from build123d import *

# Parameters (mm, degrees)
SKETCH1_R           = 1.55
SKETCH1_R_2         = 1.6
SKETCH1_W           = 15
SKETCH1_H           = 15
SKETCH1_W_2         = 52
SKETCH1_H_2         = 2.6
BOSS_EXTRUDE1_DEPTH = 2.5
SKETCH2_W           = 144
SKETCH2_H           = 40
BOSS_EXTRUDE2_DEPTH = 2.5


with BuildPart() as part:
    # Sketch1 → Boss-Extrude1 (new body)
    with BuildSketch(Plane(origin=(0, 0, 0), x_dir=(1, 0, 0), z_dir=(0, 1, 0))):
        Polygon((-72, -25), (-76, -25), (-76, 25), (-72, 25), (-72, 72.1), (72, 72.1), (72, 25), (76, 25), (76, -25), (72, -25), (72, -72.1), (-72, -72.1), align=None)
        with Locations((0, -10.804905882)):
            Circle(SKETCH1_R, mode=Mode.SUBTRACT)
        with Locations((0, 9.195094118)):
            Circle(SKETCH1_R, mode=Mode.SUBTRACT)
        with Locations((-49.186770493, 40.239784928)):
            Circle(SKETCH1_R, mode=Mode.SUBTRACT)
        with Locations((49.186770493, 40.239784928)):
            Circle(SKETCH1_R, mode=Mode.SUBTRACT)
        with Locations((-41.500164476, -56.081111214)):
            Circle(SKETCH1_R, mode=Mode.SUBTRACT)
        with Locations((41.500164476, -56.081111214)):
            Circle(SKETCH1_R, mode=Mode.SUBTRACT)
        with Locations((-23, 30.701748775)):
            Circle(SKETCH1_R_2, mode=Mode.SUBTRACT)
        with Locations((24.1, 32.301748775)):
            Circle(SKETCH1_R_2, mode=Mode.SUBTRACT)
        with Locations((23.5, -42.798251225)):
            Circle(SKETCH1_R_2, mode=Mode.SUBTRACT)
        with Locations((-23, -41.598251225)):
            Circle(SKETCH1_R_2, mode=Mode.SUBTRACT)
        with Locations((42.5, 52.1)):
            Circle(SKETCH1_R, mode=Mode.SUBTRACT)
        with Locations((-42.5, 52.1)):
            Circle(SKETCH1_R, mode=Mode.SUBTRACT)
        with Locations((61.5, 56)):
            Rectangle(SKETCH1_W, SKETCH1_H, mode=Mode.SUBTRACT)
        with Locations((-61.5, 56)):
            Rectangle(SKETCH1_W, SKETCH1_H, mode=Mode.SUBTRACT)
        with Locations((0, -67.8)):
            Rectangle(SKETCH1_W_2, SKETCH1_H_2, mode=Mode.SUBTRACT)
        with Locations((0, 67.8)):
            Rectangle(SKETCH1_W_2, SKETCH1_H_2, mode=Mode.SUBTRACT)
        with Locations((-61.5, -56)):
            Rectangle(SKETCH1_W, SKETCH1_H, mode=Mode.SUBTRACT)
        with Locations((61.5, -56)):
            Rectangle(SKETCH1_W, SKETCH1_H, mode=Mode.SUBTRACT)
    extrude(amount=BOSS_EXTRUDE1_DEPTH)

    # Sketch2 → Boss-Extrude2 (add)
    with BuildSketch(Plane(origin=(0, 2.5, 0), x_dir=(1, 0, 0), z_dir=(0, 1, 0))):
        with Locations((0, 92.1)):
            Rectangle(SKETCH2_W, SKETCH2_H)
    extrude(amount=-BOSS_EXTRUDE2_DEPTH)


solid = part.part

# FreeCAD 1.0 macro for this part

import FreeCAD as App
import Part
import Sketcher

V = App.Vector

doc = App.newDocument("Part")
params = doc.addObject("Spreadsheet::Sheet", "Params")
for row, (alias, value) in enumerate([
    ("sketch1_diameter", "3.1 mm"),
    ("sketch1_diameter2", "3.2 mm"),
    ("sketch1_width", "4 mm"),
    ("sketch1_width2", "144 mm"),
    ("sketch1_width3", "15 mm"),
    ("pad1_length", "2.5 mm"),
    ("sketch2_width", "144 mm"),
    ("sketch2_height", "40 mm"),
    ("pad2_length", "2.5 mm"),
], start=1):
    params.set(f"A{row}", alias)
    params.set(f"B{row}", "=" + value)
    params.setAlias(f"B{row}", alias)

body = doc.addObject("PartDesign::Body", "Body")

sketch1 = doc.addObject("Sketcher::SketchObject", "Sketch")
body.addObject(sketch1)
sketch1.AttachmentSupport = (doc.XZ_Plane, [""])
sketch1.MapMode = "FlatFace"
sketch1.addGeometry(Part.LineSegment(V(-76, 25, 0), V(-72, 25, 0)), False)
sketch1.addGeometry(Part.LineSegment(V(-72, 25, 0), V(-72, 72.1, 0)), False)
sketch1.addGeometry(Part.LineSegment(V(-72, 72.1, 0), V(72, 72.1, 0)), False)
sketch1.addGeometry(Part.LineSegment(V(72, 72.1, 0), V(72, 25, 0)), False)
sketch1.addGeometry(Part.LineSegment(V(72, 25, 0), V(76, 25, 0)), False)
sketch1.addGeometry(Part.LineSegment(V(76, 25, 0), V(76, -25, 0)), False)
sketch1.addGeometry(Part.LineSegment(V(76, -25, 0), V(72, -25, 0)), False)
sketch1.addGeometry(Part.LineSegment(V(72, -25, 0), V(72, -72.1, 0)), False)
sketch1.addGeometry(Part.LineSegment(V(72, -72.1, 0), V(-72, -72.1, 0)), False)
sketch1.addGeometry(Part.LineSegment(V(-72, -72.1, 0), V(-72, -25, 0)), False)
sketch1.addGeometry(Part.LineSegment(V(-72, -25, 0), V(-76, -25, 0)), False)
sketch1.addGeometry(Part.LineSegment(V(-76, -25, 0), V(-76, 25, 0)), False)
sketch1.addGeometry(Part.LineSegment(V(54, 63.5, 0), V(54, 48.5, 0)), False)
sketch1.addGeometry(Part.LineSegment(V(54, 48.5, 0), V(69, 48.5, 0)), False)
sketch1.addGeometry(Part.LineSegment(V(69, 48.5, 0), V(69, 63.5, 0)), False)
sketch1.addGeometry(Part.LineSegment(V(69, 63.5, 0), V(54, 63.5, 0)), False)
sketch1.addGeometry(Part.Circle(V(41.500164, 56.081111, 0), V(0, 0, 1), 1.55), False)
sketch1.addGeometry(Part.Circle(V(23.5, 42.798251, 0), V(0, 0, 1), 1.6), False)
sketch1.addGeometry(Part.LineSegment(V(-26, 69.1, 0), V(-26, 66.5, 0)), False)
sketch1.addGeometry(Part.LineSegment(V(-26, 66.5, 0), V(26, 66.5, 0)), False)
sketch1.addGeometry(Part.LineSegment(V(26, 66.5, 0), V(26, 69.1, 0)), False)
sketch1.addGeometry(Part.LineSegment(V(26, 69.1, 0), V(-26, 69.1, 0)), False)
sketch1.addGeometry(Part.Circle(V(-23, 41.598251, 0), V(0, 0, 1), 1.6), False)
sketch1.addGeometry(Part.Circle(V(-41.500164, 56.081111, 0), V(0, 0, 1), 1.55), False)
sketch1.addGeometry(Part.LineSegment(V(-69, 63.5, 0), V(-69, 48.5, 0)), False)
sketch1.addGeometry(Part.LineSegment(V(-69, 48.5, 0), V(-54, 48.5, 0)), False)
sketch1.addGeometry(Part.LineSegment(V(-54, 48.5, 0), V(-54, 63.5, 0)), False)
sketch1.addGeometry(Part.LineSegment(V(-54, 63.5, 0), V(-69, 63.5, 0)), False)
sketch1.addGeometry(Part.Circle(V(0, 10.804906, 0), V(0, 0, 1), 1.55), False)
sketch1.addGeometry(Part.Circle(V(24.1, -32.301749, 0), V(0, 0, 1), 1.6), False)
sketch1.addGeometry(Part.Circle(V(49.18677, -40.239785, 0), V(0, 0, 1), 1.55), False)
sketch1.addGeometry(Part.LineSegment(V(54, -48.5, 0), V(54, -63.5, 0)), False)
sketch1.addGeometry(Part.LineSegment(V(54, -63.5, 0), V(69, -63.5, 0)), False)
sketch1.addGeometry(Part.LineSegment(V(69, -63.5, 0), V(69, -48.5, 0)), False)
sketch1.addGeometry(Part.LineSegment(V(69, -48.5, 0), V(54, -48.5, 0)), False)
sketch1.addGeometry(Part.Circle(V(42.5, -52.1, 0), V(0, 0, 1), 1.55), False)
sketch1.addGeometry(Part.Circle(V(0, -9.195094, 0), V(0, 0, 1), 1.55), False)
sketch1.addGeometry(Part.Circle(V(-23, -30.701749, 0), V(0, 0, 1), 1.6), False)
sketch1.addGeometry(Part.LineSegment(V(-26, -66.5, 0), V(-26, -69.1, 0)), False)
sketch1.addGeometry(Part.LineSegment(V(-26, -69.1, 0), V(26, -69.1, 0)), False)
sketch1.addGeometry(Part.LineSegment(V(26, -69.1, 0), V(26, -66.5, 0)), False)
sketch1.addGeometry(Part.LineSegment(V(26, -66.5, 0), V(-26, -66.5, 0)), False)
sketch1.addGeometry(Part.Circle(V(-49.18677, -40.239785, 0), V(0, 0, 1), 1.55), False)
sketch1.addGeometry(Part.Circle(V(-42.5, -52.1, 0), V(0, 0, 1), 1.55), False)
sketch1.addGeometry(Part.LineSegment(V(-69, -48.5, 0), V(-69, -63.5, 0)), False)
sketch1.addGeometry(Part.LineSegment(V(-69, -63.5, 0), V(-54, -63.5, 0)), False)
sketch1.addGeometry(Part.LineSegment(V(-54, -63.5, 0), V(-54, -48.5, 0)), False)
sketch1.addGeometry(Part.LineSegment(V(-54, -48.5, 0), V(-69, -48.5, 0)), False)
sketch1.addConstraint(Sketcher.Constraint("Coincident", 0, 2, 1, 1))
sketch1.addConstraint(Sketcher.Constraint("Coincident", 1, 2, 2, 1))
sketch1.addConstraint(Sketcher.Constraint("Coincident", 2, 2, 3, 1))
sketch1.addConstraint(Sketcher.Constraint("Coincident", 3, 2, 4, 1))
sketch1.addConstraint(Sketcher.Constraint("Coincident", 4, 2, 5, 1))
sketch1.addConstraint(Sketcher.Constraint("Coincident", 5, 2, 6, 1))
sketch1.addConstraint(Sketcher.Constraint("Coincident", 6, 2, 7, 1))
sketch1.addConstraint(Sketcher.Constraint("Coincident", 7, 2, 8, 1))
sketch1.addConstraint(Sketcher.Constraint("Coincident", 8, 2, 9, 1))
sketch1.addConstraint(Sketcher.Constraint("Coincident", 9, 2, 10, 1))
sketch1.addConstraint(Sketcher.Constraint("Coincident", 10, 2, 11, 1))
sketch1.addConstraint(Sketcher.Constraint("Coincident", 11, 2, 0, 1))
sketch1.addConstraint(Sketcher.Constraint("Coincident", 12, 2, 13, 1))
sketch1.addConstraint(Sketcher.Constraint("Coincident", 13, 2, 14, 1))
sketch1.addConstraint(Sketcher.Constraint("Coincident", 14, 2, 15, 1))
sketch1.addConstraint(Sketcher.Constraint("Coincident", 15, 2, 12, 1))
sketch1.addConstraint(Sketcher.Constraint("Coincident", 18, 2, 19, 1))
sketch1.addConstraint(Sketcher.Constraint("Coincident", 19, 2, 20, 1))
sketch1.addConstraint(Sketcher.Constraint("Coincident", 20, 2, 21, 1))
sketch1.addConstraint(Sketcher.Constraint("Coincident", 21, 2, 18, 1))
sketch1.addConstraint(Sketcher.Constraint("Coincident", 24, 2, 25, 1))
sketch1.addConstraint(Sketcher.Constraint("Coincident", 25, 2, 26, 1))
sketch1.addConstraint(Sketcher.Constraint("Coincident", 26, 2, 27, 1))
sketch1.addConstraint(Sketcher.Constraint("Coincident", 27, 2, 24, 1))
sketch1.addConstraint(Sketcher.Constraint("Coincident", 31, 2, 32, 1))
sketch1.addConstraint(Sketcher.Constraint("Coincident", 32, 2, 33, 1))
sketch1.addConstraint(Sketcher.Constraint("Coincident", 33, 2, 34, 1))
sketch1.addConstraint(Sketcher.Constraint("Coincident", 34, 2, 31, 1))
sketch1.addConstraint(Sketcher.Constraint("Coincident", 38, 2, 39, 1))
sketch1.addConstraint(Sketcher.Constraint("Coincident", 39, 2, 40, 1))
sketch1.addConstraint(Sketcher.Constraint("Coincident", 40, 2, 41, 1))
sketch1.addConstraint(Sketcher.Constraint("Coincident", 41, 2, 38, 1))
sketch1.addConstraint(Sketcher.Constraint("Coincident", 44, 2, 45, 1))
sketch1.addConstraint(Sketcher.Constraint("Coincident", 45, 2, 46, 1))
sketch1.addConstraint(Sketcher.Constraint("Coincident", 46, 2, 47, 1))
sketch1.addConstraint(Sketcher.Constraint("Coincident", 47, 2, 44, 1))
sketch1.addConstraint(Sketcher.Constraint("Horizontal", 0))
sketch1.addConstraint(Sketcher.Constraint("Vertical", 1))
sketch1.addConstraint(Sketcher.Constraint("Horizontal", 2))
sketch1.addConstraint(Sketcher.Constraint("Vertical", 3))
sketch1.addConstraint(Sketcher.Constraint("Horizontal", 4))
sketch1.addConstraint(Sketcher.Constraint("Vertical", 5))
sketch1.addConstraint(Sketcher.Constraint("Horizontal", 6))
sketch1.addConstraint(Sketcher.Constraint("Vertical", 7))
sketch1.addConstraint(Sketcher.Constraint("Horizontal", 8))
sketch1.addConstraint(Sketcher.Constraint("Vertical", 9))
sketch1.addConstraint(Sketcher.Constraint("Horizontal", 10))
sketch1.addConstraint(Sketcher.Constraint("Vertical", 11))
sketch1.addConstraint(Sketcher.Constraint("Vertical", 12))
sketch1.addConstraint(Sketcher.Constraint("Horizontal", 13))
sketch1.addConstraint(Sketcher.Constraint("Vertical", 14))
sketch1.addConstraint(Sketcher.Constraint("Horizontal", 15))
sketch1.addConstraint(Sketcher.Constraint("Vertical", 18))
sketch1.addConstraint(Sketcher.Constraint("Horizontal", 19))
sketch1.addConstraint(Sketcher.Constraint("Vertical", 20))
sketch1.addConstraint(Sketcher.Constraint("Horizontal", 21))
sketch1.addConstraint(Sketcher.Constraint("Vertical", 24))
sketch1.addConstraint(Sketcher.Constraint("Horizontal", 25))
sketch1.addConstraint(Sketcher.Constraint("Vertical", 26))
sketch1.addConstraint(Sketcher.Constraint("Horizontal", 27))
sketch1.addConstraint(Sketcher.Constraint("Vertical", 31))
sketch1.addConstraint(Sketcher.Constraint("Horizontal", 32))
sketch1.addConstraint(Sketcher.Constraint("Vertical", 33))
sketch1.addConstraint(Sketcher.Constraint("Horizontal", 34))
sketch1.addConstraint(Sketcher.Constraint("Vertical", 38))
sketch1.addConstraint(Sketcher.Constraint("Horizontal", 39))
sketch1.addConstraint(Sketcher.Constraint("Vertical", 40))
sketch1.addConstraint(Sketcher.Constraint("Horizontal", 41))
sketch1.addConstraint(Sketcher.Constraint("Vertical", 44))
sketch1.addConstraint(Sketcher.Constraint("Horizontal", 45))
sketch1.addConstraint(Sketcher.Constraint("Vertical", 46))
sketch1.addConstraint(Sketcher.Constraint("Horizontal", 47))
sketch1.addConstraint(Sketcher.Constraint("Equal", 17, 22))
sketch1.addConstraint(Sketcher.Constraint("Equal", 16, 23))
sketch1.addConstraint(Sketcher.Constraint("Equal", 23, 28))
sketch1.addConstraint(Sketcher.Constraint("Equal", 22, 29))
sketch1.addConstraint(Sketcher.Constraint("Equal", 28, 30))
sketch1.addConstraint(Sketcher.Constraint("Equal", 30, 35))
sketch1.addConstraint(Sketcher.Constraint("Equal", 35, 36))
sketch1.addConstraint(Sketcher.Constraint("Equal", 29, 37))
sketch1.addConstraint(Sketcher.Constraint("Equal", 36, 42))
sketch1.addConstraint(Sketcher.Constraint("Equal", 42, 43))
sketch1.addConstraint(Sketcher.Constraint("Symmetric", 0, 2, 6, 2, -1, 1))
sketch1.addConstraint(Sketcher.Constraint("Symmetric", 2, 2, 8, 2, -1, 1))
sketch1.addConstraint(Sketcher.Constraint("Symmetric", 4, 2, 10, 2, -1, 1))
sketch1.addConstraint(Sketcher.Constraint("Symmetric", 26, 2, 31, 2, -1, 1))
sketch1.addConstraint(Sketcher.Constraint("Symmetric", 24, 2, 33, 2, -1, 1))
sketch1.addConstraint(Sketcher.Constraint("Symmetric", 20, 2, 38, 2, -1, 1))
sketch1.addConstraint(Sketcher.Constraint("Symmetric", 18, 2, 40, 2, -1, 1))
sketch1.addConstraint(Sketcher.Constraint("Symmetric", 14, 2, 44, 2, -1, 1))
sketch1.addConstraint(Sketcher.Constraint("Symmetric", 12, 2, 46, 2, -1, 1))
sketch1.addConstraint(Sketcher.Constraint("Symmetric", 16, 3, 23, 3, -2))
sketch1.addConstraint(Sketcher.Constraint("Symmetric", 30, 3, 42, 3, -2))
sketch1.addConstraint(Sketcher.Constraint("Symmetric", 35, 3, 43, 3, -2))
sketch1.addConstraint(Sketcher.Constraint("Symmetric", 0, 2, 3, 2, -2))
sketch1.addConstraint(Sketcher.Constraint("Symmetric", 13, 2, 24, 2, -2))
sketch1.addConstraint(Sketcher.Constraint("Symmetric", 15, 2, 26, 2, -2))
sketch1.addConstraint(Sketcher.Constraint("PointOnObject", 28, 3, -2))
sketch1.addConstraint(Sketcher.Constraint("PointOnObject", 36, 3, -2))
sketch1.addConstraint(Sketcher.Constraint("Vertical", 22, 3, 37, 3))
sketch1.addConstraint(Sketcher.Constraint("Vertical", 21, 2, 38, 2))
sketch1.addConstraint(Sketcher.Constraint("Equal", 47, 12))
sketch1.addConstraint(Sketcher.Constraint("Diameter", 16, 3.1))
sketch1.addConstraint(Sketcher.Constraint("Diameter", 17, 3.2))
sketch1.addConstraint(Sketcher.Constraint("DistanceX", 0, 1, 0, 2, 4.0))
sketch1.addConstraint(Sketcher.Constraint("DistanceX", 2, 1, 2, 2, 144.0))
sketch1.addConstraint(Sketcher.Constraint("DistanceX", 13, 1, 13, 2, 15.0))
sketch1.addConstraint(Sketcher.Constraint("DistanceX", 19, 1, 19, 2, 52.0))
sketch1.addConstraint(Sketcher.Constraint("DistanceY", 5, 2, 5, 1, 50.0))
sketch1.addConstraint(Sketcher.Constraint("DistanceY", 1, 1, 1, 2, 47.1))
sketch1.addConstraint(Sketcher.Constraint("DistanceY", 18, 2, 18, 1, 2.6))
sketch1.addConstraint(Sketcher.Constraint("DistanceX", 22, 3, -1, 1, 23.0))
sketch1.addConstraint(Sketcher.Constraint("DistanceX", -1, 1, 12, 2, 54.0))
sketch1.addConstraint(Sketcher.Constraint("DistanceX", 17, 3, 35, 3, 19.0))
sketch1.addConstraint(Sketcher.Constraint("DistanceY", 36, 3, 28, 3, 20.0))
sketch1.addConstraint(Sketcher.Constraint("DistanceY", 7, 2, 35, 3, 20.0))
sketch1.addConstraint(Sketcher.Constraint("DistanceY", 15, 2, 19, 2, 3.0))
sketch1.addConstraint(Sketcher.Constraint("DistanceY", 21, 2, 1, 2, 3.0))
sketch1.addConstraint(Sketcher.Constraint("DistanceX", -1, 1, 17, 3, 23.5))
sketch1.addConstraint(Sketcher.Constraint("DistanceX", -1, 1, 29, 3, 24.1))
sketch1.addConstraint(Sketcher.Constraint("DistanceY", 22, 3, 17, 3, 1.2))
sketch1.addConstraint(Sketcher.Constraint("DistanceY", 29, 3, 17, 3, 75.1))
sketch1.addConstraint(Sketcher.Constraint("DistanceY", 29, 3, 37, 3, 1.6))
sketch1.addConstraint(Sketcher.Constraint("DistanceY", -1, 1, 16, 3, 56.081111))
sketch1.addConstraint(Sketcher.Constraint("DistanceY", -1, 1, 17, 3, 42.798251))
sketch1.addConstraint(Sketcher.Constraint("DistanceX", -1, 1, 30, 3, 49.18677))
sketch1.addConstraint(Sketcher.Constraint("DistanceX", 23, 3, 16, 3, 83.000329))
sketch1.addConstraint(Sketcher.Constraint("DistanceY", 30, 3, 28, 3, 51.044691))
sketch1.addConstraint(Sketcher.Constraint("DistanceY", -1, 1, 28, 3, 10.804906))
sketch1.setExpression("Constraints[102]", "Params.sketch1_diameter")
sketch1.setExpression("Constraints[103]", "Params.sketch1_diameter2")
sketch1.setExpression("Constraints[104]", "Params.sketch1_width")
sketch1.setExpression("Constraints[105]", "Params.sketch1_width2")
sketch1.setExpression("Constraints[106]", "Params.sketch1_width3")
pad1 = doc.addObject("PartDesign::Pad", "Pad")
body.addObject(pad1)
pad1.Profile = sketch1
pad1.setExpression("Length", "Params.pad1_length")
pad1.Reversed = True

sketch2 = doc.addObject("Sketcher::SketchObject", "Sketch001")
body.addObject(sketch2)
sketch2.AttachmentSupport = (doc.XZ_Plane, [""])
sketch2.MapMode = "FlatFace"
sketch2.AttachmentOffset = App.Placement(V(0, 0, -2.5), App.Rotation())
sketch2.addGeometry(Part.LineSegment(V(-72, -112.1, 0), V(-72, -72.1, 0)), False)
sketch2.addGeometry(Part.LineSegment(V(-72, -72.1, 0), V(72, -72.1, 0)), False)
sketch2.addGeometry(Part.LineSegment(V(72, -72.1, 0), V(72, -112.1, 0)), False)
sketch2.addGeometry(Part.LineSegment(V(72, -112.1, 0), V(-72, -112.1, 0)), False)
sketch2.addConstraint(Sketcher.Constraint("Coincident", 0, 2, 1, 1))
sketch2.addConstraint(Sketcher.Constraint("Coincident", 1, 2, 2, 1))
sketch2.addConstraint(Sketcher.Constraint("Coincident", 2, 2, 3, 1))
sketch2.addConstraint(Sketcher.Constraint("Coincident", 3, 2, 0, 1))
sketch2.addConstraint(Sketcher.Constraint("Vertical", 0))
sketch2.addConstraint(Sketcher.Constraint("Horizontal", 1))
sketch2.addConstraint(Sketcher.Constraint("Vertical", 2))
sketch2.addConstraint(Sketcher.Constraint("Horizontal", 3))
sketch2.addConstraint(Sketcher.Constraint("DistanceX", 1, 1, 1, 2, 144.0))
sketch2.addConstraint(Sketcher.Constraint("DistanceY", 0, 1, 0, 2, 40.0))
sketch2.addConstraint(Sketcher.Constraint("DistanceX", 0, 2, -1, 1, 72.0))
sketch2.addConstraint(Sketcher.Constraint("DistanceY", 0, 2, -1, 1, 72.1))
sketch2.setExpression("Constraints[8]", "Params.sketch2_width")
sketch2.setExpression("Constraints[9]", "Params.sketch2_height")
pad2 = doc.addObject("PartDesign::Pad", "Pad001")
body.addObject(pad2)
pad2.Profile = sketch2
pad2.setExpression("Length", "Params.pad2_length")

doc.recompute()
